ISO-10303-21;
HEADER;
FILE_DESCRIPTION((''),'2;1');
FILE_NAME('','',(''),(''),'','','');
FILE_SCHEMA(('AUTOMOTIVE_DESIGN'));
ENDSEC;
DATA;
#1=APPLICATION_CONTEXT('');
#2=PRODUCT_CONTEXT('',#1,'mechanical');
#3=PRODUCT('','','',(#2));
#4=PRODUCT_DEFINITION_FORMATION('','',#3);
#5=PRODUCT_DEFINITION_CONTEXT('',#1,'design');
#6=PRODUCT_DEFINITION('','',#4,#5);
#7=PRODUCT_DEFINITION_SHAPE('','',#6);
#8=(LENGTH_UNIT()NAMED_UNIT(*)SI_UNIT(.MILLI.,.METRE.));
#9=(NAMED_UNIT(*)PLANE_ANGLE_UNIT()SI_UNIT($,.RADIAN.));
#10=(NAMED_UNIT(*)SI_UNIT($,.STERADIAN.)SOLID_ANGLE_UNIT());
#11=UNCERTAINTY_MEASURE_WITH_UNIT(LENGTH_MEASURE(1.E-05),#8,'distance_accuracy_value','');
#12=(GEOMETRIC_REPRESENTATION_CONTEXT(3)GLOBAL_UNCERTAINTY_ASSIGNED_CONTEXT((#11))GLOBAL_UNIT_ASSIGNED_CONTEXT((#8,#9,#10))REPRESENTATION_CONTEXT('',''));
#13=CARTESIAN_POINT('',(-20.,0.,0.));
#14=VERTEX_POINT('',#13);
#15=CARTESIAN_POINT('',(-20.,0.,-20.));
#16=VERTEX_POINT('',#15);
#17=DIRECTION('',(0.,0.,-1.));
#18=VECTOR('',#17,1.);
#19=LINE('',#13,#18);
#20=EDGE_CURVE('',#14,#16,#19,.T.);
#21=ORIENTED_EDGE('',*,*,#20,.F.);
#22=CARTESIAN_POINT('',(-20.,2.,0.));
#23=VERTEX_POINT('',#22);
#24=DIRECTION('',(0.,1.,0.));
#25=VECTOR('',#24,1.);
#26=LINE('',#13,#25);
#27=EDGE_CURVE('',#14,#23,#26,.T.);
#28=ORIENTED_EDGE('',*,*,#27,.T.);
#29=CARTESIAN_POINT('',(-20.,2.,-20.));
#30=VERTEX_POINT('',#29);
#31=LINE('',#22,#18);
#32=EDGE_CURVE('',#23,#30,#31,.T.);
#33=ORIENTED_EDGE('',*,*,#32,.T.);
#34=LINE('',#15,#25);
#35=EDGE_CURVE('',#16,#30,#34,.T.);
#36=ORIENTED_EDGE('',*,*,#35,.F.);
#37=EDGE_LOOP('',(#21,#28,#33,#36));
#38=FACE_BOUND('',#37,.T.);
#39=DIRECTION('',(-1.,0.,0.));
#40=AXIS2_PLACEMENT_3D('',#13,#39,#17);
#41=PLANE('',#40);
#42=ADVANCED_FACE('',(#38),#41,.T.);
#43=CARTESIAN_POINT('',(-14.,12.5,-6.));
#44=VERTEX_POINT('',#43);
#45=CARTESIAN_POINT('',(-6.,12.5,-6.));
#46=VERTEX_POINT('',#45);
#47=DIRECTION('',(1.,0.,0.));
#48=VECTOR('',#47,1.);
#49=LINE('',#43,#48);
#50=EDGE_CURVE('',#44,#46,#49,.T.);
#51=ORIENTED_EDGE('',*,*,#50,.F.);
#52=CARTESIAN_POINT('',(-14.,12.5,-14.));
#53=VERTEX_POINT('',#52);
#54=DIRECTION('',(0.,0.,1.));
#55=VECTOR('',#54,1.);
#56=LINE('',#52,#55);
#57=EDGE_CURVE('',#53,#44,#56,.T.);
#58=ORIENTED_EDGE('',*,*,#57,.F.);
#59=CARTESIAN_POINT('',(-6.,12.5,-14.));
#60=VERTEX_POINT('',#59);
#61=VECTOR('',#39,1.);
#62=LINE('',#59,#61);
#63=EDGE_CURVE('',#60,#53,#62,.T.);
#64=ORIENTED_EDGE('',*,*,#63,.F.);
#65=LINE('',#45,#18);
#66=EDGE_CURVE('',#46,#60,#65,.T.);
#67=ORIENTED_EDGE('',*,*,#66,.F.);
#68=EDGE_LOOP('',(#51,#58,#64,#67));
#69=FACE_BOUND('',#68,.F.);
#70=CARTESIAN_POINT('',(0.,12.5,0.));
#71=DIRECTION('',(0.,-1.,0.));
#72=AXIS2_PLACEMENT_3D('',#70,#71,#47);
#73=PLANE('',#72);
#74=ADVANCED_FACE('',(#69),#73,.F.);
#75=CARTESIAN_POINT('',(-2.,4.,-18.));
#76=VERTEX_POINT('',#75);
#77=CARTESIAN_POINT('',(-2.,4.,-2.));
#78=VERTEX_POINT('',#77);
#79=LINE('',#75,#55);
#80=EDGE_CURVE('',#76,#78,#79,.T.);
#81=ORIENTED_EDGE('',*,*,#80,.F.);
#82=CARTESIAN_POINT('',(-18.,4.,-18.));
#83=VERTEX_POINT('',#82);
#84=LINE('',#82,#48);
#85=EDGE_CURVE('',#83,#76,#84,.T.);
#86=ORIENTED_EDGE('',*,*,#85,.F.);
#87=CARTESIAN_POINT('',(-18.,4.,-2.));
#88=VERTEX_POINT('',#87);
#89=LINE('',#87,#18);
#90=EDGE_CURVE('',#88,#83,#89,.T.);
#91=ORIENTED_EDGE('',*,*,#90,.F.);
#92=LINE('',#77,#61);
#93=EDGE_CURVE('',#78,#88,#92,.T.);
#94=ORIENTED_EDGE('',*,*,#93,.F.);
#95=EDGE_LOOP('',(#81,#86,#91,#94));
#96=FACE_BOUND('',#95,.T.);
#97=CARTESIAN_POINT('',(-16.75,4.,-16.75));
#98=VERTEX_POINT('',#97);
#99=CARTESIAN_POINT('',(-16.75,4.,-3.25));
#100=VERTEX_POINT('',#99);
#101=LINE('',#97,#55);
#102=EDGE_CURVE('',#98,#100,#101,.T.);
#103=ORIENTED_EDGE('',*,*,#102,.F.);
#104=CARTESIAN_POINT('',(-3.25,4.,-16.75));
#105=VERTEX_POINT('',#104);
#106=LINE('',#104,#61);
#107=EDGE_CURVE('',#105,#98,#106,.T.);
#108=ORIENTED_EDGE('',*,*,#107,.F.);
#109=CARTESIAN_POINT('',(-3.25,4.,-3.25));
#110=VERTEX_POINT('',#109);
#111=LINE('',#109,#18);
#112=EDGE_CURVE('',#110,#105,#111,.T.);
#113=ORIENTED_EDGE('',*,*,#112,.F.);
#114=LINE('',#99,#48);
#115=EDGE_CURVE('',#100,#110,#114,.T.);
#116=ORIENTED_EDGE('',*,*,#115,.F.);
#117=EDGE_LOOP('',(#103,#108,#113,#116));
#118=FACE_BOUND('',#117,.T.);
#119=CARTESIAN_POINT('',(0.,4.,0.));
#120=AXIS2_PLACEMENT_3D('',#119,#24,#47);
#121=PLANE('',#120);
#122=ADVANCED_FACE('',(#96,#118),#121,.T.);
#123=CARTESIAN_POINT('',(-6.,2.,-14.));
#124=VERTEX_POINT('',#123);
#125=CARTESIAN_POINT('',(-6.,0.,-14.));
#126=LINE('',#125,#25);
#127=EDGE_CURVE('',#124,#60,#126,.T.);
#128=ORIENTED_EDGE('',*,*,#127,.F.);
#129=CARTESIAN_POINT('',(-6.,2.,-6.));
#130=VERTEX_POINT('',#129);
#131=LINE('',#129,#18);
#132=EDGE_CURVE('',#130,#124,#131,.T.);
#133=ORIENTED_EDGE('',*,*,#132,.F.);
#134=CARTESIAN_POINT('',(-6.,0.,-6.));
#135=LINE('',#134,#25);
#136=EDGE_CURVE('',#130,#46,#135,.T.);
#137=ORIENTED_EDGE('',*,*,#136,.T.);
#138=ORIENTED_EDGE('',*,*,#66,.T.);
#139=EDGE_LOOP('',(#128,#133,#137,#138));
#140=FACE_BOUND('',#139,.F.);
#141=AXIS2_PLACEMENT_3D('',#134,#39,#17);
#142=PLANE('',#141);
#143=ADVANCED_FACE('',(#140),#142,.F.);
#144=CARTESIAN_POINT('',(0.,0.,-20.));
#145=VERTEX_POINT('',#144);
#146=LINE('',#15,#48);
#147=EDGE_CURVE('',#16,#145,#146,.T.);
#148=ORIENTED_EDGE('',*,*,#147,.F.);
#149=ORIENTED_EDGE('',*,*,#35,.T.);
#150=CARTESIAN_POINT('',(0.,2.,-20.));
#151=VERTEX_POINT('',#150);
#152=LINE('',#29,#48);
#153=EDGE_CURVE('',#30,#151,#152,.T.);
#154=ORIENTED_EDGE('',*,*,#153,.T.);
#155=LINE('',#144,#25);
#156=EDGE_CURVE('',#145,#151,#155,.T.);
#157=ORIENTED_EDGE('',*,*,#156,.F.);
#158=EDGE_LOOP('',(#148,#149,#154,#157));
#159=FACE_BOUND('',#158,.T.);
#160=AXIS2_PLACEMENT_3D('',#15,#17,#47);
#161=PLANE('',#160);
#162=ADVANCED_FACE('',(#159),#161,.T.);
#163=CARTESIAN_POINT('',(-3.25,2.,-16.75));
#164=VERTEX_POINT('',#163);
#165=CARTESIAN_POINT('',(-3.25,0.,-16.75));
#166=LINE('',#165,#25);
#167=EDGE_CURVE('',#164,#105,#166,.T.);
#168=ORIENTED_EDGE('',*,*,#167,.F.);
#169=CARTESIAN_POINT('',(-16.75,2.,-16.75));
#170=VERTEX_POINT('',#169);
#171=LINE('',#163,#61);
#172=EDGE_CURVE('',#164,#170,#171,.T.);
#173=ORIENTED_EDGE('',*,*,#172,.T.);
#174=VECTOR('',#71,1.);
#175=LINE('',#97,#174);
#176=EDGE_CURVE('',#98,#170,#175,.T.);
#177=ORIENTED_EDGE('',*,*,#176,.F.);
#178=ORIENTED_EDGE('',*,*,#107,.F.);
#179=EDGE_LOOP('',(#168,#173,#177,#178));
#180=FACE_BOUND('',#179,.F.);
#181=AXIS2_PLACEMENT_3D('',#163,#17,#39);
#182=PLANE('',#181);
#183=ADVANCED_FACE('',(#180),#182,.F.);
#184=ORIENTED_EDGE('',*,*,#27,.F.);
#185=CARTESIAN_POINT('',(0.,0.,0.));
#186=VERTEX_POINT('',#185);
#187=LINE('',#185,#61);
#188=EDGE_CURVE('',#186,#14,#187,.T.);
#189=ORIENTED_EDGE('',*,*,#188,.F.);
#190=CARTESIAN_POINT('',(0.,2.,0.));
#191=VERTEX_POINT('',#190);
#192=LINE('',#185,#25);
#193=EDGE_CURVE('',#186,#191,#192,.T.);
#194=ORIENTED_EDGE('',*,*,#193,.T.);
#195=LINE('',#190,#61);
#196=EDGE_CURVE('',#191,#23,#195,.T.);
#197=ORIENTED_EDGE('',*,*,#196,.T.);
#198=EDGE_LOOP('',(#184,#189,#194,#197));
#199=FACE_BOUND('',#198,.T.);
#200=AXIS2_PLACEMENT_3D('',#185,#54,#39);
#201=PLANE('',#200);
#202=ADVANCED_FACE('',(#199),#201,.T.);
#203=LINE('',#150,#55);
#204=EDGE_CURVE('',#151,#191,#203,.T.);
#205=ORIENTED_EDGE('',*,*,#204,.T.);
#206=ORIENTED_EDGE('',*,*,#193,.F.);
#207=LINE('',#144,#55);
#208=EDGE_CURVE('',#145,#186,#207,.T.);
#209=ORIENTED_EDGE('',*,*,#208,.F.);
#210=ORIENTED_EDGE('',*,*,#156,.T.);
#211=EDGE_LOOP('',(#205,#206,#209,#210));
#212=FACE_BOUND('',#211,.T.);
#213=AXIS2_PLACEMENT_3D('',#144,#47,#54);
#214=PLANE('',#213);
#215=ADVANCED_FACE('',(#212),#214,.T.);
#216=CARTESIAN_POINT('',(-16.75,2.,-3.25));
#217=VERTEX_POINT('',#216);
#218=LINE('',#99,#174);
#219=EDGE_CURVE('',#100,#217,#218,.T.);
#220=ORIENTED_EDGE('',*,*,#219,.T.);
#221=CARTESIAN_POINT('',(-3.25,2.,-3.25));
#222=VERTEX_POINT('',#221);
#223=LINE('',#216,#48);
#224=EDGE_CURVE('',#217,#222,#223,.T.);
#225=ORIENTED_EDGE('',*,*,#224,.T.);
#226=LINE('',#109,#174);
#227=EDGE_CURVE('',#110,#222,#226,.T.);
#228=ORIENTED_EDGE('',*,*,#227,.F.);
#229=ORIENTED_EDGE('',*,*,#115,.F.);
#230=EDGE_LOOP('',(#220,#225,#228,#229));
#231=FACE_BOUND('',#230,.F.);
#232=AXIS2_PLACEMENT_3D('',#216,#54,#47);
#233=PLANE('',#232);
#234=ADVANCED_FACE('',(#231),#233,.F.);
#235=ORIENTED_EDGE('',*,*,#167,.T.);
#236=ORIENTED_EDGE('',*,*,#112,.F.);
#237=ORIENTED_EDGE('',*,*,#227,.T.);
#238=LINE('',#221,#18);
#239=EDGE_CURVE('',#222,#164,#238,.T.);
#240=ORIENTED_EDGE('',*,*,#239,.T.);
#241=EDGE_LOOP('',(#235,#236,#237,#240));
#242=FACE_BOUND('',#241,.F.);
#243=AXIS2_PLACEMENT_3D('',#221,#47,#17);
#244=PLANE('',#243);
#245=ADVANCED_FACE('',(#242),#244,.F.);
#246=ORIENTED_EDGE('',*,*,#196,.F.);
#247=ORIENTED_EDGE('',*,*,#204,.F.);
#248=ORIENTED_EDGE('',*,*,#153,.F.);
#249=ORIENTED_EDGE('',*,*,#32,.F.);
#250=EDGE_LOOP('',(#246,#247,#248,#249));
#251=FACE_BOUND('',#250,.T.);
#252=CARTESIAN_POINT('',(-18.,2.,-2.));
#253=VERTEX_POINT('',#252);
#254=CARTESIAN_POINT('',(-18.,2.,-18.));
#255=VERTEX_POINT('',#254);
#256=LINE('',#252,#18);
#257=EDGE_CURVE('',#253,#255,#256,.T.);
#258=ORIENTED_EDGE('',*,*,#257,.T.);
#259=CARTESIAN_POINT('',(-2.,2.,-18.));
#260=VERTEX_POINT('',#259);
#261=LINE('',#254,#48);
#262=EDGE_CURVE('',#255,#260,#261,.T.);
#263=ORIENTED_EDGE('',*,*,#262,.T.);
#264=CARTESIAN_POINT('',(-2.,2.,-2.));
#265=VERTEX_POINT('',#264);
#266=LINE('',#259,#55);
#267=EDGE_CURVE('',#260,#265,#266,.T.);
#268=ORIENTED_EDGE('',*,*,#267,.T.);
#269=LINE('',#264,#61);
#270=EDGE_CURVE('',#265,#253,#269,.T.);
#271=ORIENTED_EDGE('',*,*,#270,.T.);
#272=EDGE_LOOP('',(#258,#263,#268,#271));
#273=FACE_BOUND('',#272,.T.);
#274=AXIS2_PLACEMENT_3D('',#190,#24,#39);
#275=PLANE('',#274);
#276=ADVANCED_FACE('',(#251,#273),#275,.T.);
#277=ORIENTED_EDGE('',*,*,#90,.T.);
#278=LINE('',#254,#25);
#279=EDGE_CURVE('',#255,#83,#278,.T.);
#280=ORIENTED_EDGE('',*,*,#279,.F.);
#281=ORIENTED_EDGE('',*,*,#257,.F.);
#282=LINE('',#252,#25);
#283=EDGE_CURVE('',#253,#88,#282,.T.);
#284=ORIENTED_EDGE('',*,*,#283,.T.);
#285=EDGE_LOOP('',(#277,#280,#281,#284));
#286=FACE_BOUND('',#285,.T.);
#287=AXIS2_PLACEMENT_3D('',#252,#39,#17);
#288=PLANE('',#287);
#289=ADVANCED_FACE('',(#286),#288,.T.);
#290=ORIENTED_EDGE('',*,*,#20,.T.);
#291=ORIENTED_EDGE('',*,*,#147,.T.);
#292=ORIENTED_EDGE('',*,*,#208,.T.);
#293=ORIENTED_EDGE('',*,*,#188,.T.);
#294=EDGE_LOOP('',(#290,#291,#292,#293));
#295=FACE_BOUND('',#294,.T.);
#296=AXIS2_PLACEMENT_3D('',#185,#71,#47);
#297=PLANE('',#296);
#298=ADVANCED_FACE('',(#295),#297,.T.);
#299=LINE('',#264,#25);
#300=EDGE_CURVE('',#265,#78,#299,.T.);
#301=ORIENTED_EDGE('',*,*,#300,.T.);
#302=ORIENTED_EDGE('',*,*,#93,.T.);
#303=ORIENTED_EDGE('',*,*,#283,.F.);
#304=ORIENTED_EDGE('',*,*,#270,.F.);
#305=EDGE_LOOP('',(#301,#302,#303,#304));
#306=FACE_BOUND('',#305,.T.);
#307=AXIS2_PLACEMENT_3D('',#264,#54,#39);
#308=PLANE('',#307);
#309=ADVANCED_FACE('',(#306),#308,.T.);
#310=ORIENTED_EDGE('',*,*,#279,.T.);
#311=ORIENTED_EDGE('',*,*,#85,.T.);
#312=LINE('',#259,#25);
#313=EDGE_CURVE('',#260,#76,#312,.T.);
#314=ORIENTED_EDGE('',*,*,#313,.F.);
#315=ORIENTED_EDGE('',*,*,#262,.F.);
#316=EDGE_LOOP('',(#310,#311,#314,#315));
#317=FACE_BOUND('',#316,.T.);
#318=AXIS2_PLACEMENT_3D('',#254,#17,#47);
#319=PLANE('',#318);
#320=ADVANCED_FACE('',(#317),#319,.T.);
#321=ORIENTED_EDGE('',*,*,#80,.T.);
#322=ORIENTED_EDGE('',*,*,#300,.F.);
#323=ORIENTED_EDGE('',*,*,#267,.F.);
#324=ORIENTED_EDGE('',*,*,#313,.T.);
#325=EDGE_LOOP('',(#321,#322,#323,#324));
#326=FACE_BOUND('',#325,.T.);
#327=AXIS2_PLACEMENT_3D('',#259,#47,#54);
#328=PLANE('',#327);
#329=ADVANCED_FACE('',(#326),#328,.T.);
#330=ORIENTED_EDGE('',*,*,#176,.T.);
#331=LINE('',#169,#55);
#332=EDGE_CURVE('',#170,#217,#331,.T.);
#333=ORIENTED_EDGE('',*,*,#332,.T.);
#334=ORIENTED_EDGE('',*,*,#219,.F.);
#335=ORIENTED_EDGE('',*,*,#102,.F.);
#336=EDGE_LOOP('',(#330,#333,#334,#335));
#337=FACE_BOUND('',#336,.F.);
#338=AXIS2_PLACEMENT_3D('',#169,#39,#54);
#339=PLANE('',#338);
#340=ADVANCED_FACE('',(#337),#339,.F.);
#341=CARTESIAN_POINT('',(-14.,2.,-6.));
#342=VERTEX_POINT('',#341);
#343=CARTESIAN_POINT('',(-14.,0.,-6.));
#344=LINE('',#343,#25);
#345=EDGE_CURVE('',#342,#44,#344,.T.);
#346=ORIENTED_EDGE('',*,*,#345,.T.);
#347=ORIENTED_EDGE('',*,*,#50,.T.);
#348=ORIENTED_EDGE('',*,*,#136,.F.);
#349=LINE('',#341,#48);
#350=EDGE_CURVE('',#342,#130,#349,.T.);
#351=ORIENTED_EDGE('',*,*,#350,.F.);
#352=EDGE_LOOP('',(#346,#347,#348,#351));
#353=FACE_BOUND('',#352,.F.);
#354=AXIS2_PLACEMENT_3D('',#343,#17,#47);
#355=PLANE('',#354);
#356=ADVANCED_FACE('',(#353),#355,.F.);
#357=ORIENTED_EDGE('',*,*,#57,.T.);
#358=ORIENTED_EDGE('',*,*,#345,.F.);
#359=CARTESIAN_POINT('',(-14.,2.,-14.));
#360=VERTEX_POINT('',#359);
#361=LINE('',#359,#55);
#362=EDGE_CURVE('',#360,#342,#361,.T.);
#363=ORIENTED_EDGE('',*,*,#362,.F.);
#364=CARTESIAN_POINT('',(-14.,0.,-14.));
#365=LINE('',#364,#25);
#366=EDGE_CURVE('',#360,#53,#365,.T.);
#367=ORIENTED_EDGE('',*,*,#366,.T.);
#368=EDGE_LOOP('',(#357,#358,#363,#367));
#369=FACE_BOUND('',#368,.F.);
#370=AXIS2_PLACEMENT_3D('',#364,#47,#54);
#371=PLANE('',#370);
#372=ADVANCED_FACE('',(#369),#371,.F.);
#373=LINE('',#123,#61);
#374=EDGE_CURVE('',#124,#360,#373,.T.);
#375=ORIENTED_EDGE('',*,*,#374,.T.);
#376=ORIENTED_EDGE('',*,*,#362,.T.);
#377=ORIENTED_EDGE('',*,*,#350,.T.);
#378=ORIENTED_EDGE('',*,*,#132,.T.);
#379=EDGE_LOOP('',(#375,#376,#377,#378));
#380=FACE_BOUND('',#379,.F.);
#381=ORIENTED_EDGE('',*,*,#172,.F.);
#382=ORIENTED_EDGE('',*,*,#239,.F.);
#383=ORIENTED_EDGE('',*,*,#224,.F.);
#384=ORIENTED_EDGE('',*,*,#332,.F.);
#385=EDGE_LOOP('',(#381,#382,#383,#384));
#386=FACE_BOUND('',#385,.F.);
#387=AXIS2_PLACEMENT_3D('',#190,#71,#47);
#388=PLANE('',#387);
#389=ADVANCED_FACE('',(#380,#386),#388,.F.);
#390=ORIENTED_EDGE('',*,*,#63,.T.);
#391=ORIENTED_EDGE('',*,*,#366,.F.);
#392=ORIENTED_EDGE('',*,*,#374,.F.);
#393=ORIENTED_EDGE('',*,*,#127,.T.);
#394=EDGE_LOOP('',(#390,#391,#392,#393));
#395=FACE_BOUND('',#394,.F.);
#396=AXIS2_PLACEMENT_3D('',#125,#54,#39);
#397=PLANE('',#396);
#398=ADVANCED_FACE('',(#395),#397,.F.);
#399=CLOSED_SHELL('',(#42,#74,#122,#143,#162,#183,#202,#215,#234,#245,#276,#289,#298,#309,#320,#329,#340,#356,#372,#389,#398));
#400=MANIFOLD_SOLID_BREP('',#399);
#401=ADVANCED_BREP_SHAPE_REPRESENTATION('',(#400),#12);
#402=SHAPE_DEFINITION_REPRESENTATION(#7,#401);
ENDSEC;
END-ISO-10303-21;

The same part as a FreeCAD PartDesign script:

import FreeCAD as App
import Part
import Sketcher

V = App.Vector
Q = App.Units.Quantity

doc = App.newDocument("Part")
body = doc.addObject("PartDesign::Body", "Body")

sketch1 = doc.addObject("Sketcher::SketchObject", "Sketch")
body.addObject(sketch1)
sketch1.AttachmentSupport = (doc.XZ_Plane, [""])
sketch1.MapMode = "FlatFace"
sketch1.addGeometry([
    Part.LineSegment(V(-20, 0, 0), V(0, 0, 0)),
    Part.LineSegment(V(0, 0, 0), V(0, -20, 0)),
    Part.LineSegment(V(0, -20, 0), V(-20, -20, 0)),
    Part.LineSegment(V(-20, -20, 0), V(-20, 0, 0)),
], False)
sketch1.addConstraint([
    Sketcher.Constraint("Coincident", 0, 2, 1, 1),
    Sketcher.Constraint("Coincident", 1, 2, 2, 1),
    Sketcher.Constraint("Coincident", 2, 2, 3, 1),
    Sketcher.Constraint("Coincident", 3, 2, 0, 1),
    Sketcher.Constraint("Horizontal", 0),
    Sketcher.Constraint("Vertical", 1),
    Sketcher.Constraint("Horizontal", 2),
    Sketcher.Constraint("Vertical", 3),
    Sketcher.Constraint("Coincident", 0, 2, -1, 1),
    Sketcher.Constraint("Equal", 2, 1),
    Sketcher.Constraint("DistanceX", 0, 1, 0, 2, Q("20 mm")),
])
pad1 = doc.addObject("PartDesign::Pad", "Pad")
body.addObject(pad1)
pad1.Profile = sketch1
pad1.Length = 2
pad1.Reversed = True

sketch2 = doc.addObject("Sketcher::SketchObject", "Sketch001")
body.addObject(sketch2)
sketch2.AttachmentSupport = (doc.XZ_Plane, [""])
sketch2.MapMode = "FlatFace"
sketch2.AttachmentOffset = App.Placement(V(0, 0, -2), App.Rotation())
sketch2.addGeometry([
    Part.LineSegment(V(-18, -18, 0), V(-18, -2, 0)),
    Part.LineSegment(V(-18, -2, 0), V(-2, -2, 0)),
    Part.LineSegment(V(-2, -2, 0), V(-2, -18, 0)),
    Part.LineSegment(V(-2, -18, 0), V(-18, -18, 0)),
    Part.LineSegment(V(-17, -3, 0), V(-17, -17, 0)),
    Part.LineSegment(V(-17, -17, 0), V(-3, -17, 0)),
    Part.LineSegment(V(-3, -17, 0), V(-3, -3, 0)),
    Part.LineSegment(V(-3, -3, 0), V(-17, -3, 0)),
], False)
sketch2.addConstraint([
    Sketcher.Constraint("Coincident", 0, 2, 1, 1),
    Sketcher.Constraint("Coincident", 1, 2, 2, 1),
    Sketcher.Constraint("Coincident", 2, 2, 3, 1),
    Sketcher.Constraint("Coincident", 3, 2, 0, 1),
    Sketcher.Constraint("Coincident", 4, 2, 5, 1),
    Sketcher.Constraint("Coincident", 5, 2, 6, 1),
    Sketcher.Constraint("Coincident", 6, 2, 7, 1),
    Sketcher.Constraint("Coincident", 7, 2, 4, 1),
    Sketcher.Constraint("Vertical", 0),
    Sketcher.Constraint("Horizontal", 1),
    Sketcher.Constraint("Vertical", 2),
    Sketcher.Constraint("Horizontal", 3),
    Sketcher.Constraint("Vertical", 4),
    Sketcher.Constraint("Horizontal", 5),
    Sketcher.Constraint("Vertical", 6),
    Sketcher.Constraint("Horizontal", 7),
    Sketcher.Constraint("Equal", 3, 0),
    Sketcher.Constraint("Equal", 7, 4),
    Sketcher.Constraint("DistanceY", 0, 2, -1, 1, Q("2 mm")),
    Sketcher.Constraint("DistanceX", 1, 2, -1, 1, Q("2 mm")),
    Sketcher.Constraint("DistanceX", 1, 1, 1, 2, Q("16 mm")),
    Sketcher.Constraint("DistanceX", 3, 2, 4, 2, Q("1.25 mm")),
    Sketcher.Constraint("DistanceY", 3, 2, 4, 2, Q("1.25 mm")),
    Sketcher.Constraint("DistanceX", 5, 2, 2, 2, Q("1.25 mm")),
])
pad2 = doc.addObject("PartDesign::Pad", "Pad001")
body.addObject(pad2)
pad2.Profile = sketch2
pad2.Length = 2
pad2.Reversed = True

sketch3 = doc.addObject("Sketcher::SketchObject", "Sketch002")
body.addObject(sketch3)
sketch3.AttachmentSupport = (doc.XZ_Plane, [""])
sketch3.MapMode = "FlatFace"
sketch3.AttachmentOffset = App.Placement(V(0, 0, -2), App.Rotation())
sketch3.addGeometry([
    Part.LineSegment(V(-3, -17, 0), V(-17, -17, 0)),
    Part.LineSegment(V(-17, -17, 0), V(-17, -3, 0)),
    Part.LineSegment(V(-17, -3, 0), V(-3, -3, 0)),
    Part.LineSegment(V(-3, -3, 0), V(-3, -17, 0)),
], False)
sketch3.addConstraint([
    Sketcher.Constraint("Coincident", 0, 2, 1, 1),
    Sketcher.Constraint("Coincident", 1, 2, 2, 1),
    Sketcher.Constraint("Coincident", 2, 2, 3, 1),
    Sketcher.Constraint("Coincident", 3, 2, 0, 1),
    Sketcher.Constraint("Horizontal", 0),
    Sketcher.Constraint("Vertical", 1),
    Sketcher.Constraint("Horizontal", 2),
    Sketcher.Constraint("Vertical", 3),
    Sketcher.Constraint("Equal", 2, 1),
    Sketcher.Constraint("DistanceX", 0, 2, 0, 1, Q("13.5 mm")),
    Sketcher.Constraint("DistanceX", 0, 2, -1, 1, Q("16.75 mm")),
    Sketcher.Constraint("DistanceY", 0, 2, -1, 1, Q("16.75 mm")),
])
pocket1 = doc.addObject("PartDesign::Pocket", "Pocket")
body.addObject(pocket1)
pocket1.Profile = sketch3
pocket1.Length = 10
pocket1.Reversed = True

sketch4 = doc.addObject("Sketcher::SketchObject", "Sketch003")
body.addObject(sketch4)
sketch4.AttachmentSupport = (doc.XZ_Plane, [""])
sketch4.MapMode = "FlatFace"
sketch4.addGeometry([
    Part.LineSegment(V(-3, -17, 0), V(-3, -3, 0)),
    Part.LineSegment(V(-3, -3, 0), V(-17, -3, 0)),
    Part.LineSegment(V(-17, -3, 0), V(-17, -17, 0)),
    Part.LineSegment(V(-17, -17, 0), V(-3, -17, 0)),
    Part.LineSegment(V(-14, -6, 0), V(-6, -6, 0)),
    Part.LineSegment(V(-6, -6, 0), V(-6, -14, 0)),
    Part.LineSegment(V(-6, -14, 0), V(-14, -14, 0)),
    Part.LineSegment(V(-14, -14, 0), V(-14, -6, 0)),
], False)
sketch4.addConstraint([
    Sketcher.Constraint("Coincident", 0, 2, 1, 1),
    Sketcher.Constraint("Coincident", 1, 2, 2, 1),
    Sketcher.Constraint("Coincident", 2, 2, 3, 1),
    Sketcher.Constraint("Coincident", 3, 2, 0, 1),
    Sketcher.Constraint("Coincident", 4, 2, 5, 1),
    Sketcher.Constraint("Coincident", 5, 2, 6, 1),
    Sketcher.Constraint("Coincident", 6, 2, 7, 1),
    Sketcher.Constraint("Coincident", 7, 2, 4, 1),
    Sketcher.Constraint("Vertical", 0),
    Sketcher.Constraint("Horizontal", 1),
    Sketcher.Constraint("Vertical", 2),
    Sketcher.Constraint("Horizontal", 3),
    Sketcher.Constraint("Horizontal", 4),
    Sketcher.Constraint("Vertical", 5),
    Sketcher.Constraint("Horizontal", 6),
    Sketcher.Constraint("Vertical", 7),
    Sketcher.Constraint("Equal", 3, 0),
    Sketcher.Constraint("Equal", 6, 5),
    Sketcher.Constraint("DistanceX", 4, 1, 4, 2, Q("8 mm")),
    Sketcher.Constraint("DistanceX", 1, 2, 1, 1, Q("13.5 mm")),
    Sketcher.Constraint("DistanceX", 4, 2, -1, 1, Q("6 mm")),
    Sketcher.Constraint("DistanceY", 4, 2, -1, 1, Q("6 mm")),
    Sketcher.Constraint("DistanceX", 0, 2, -1, 1, Q("3.25 mm")),
    Sketcher.Constraint("DistanceY", 0, 2, -1, 1, Q("3.25 mm")),
])
pad3 = doc.addObject("PartDesign::Pad", "Pad002")
body.addObject(pad3)
pad3.Profile = sketch4
pad3.Length = 2
pad3.Reversed = True

sketch5 = doc.addObject("Sketcher::SketchObject", "Sketch004")
body.addObject(sketch5)
sketch5.AttachmentSupport = (doc.XZ_Plane, [""])
sketch5.MapMode = "FlatFace"
sketch5.addGeometry([
    Part.LineSegment(V(-6, -14, 0), V(-6, -6, 0)),
    Part.LineSegment(V(-6, -6, 0), V(-14, -6, 0)),
    Part.LineSegment(V(-14, -6, 0), V(-14, -14, 0)),
    Part.LineSegment(V(-14, -14, 0), V(-6, -14, 0)),
], False)
sketch5.addConstraint([
    Sketcher.Constraint("Coincident", 0, 2, 1, 1),
    Sketcher.Constraint("Coincident", 1, 2, 2, 1),
    Sketcher.Constraint("Coincident", 2, 2, 3, 1),
    Sketcher.Constraint("Coincident", 3, 2, 0, 1),
    Sketcher.Constraint("Vertical", 0),
    Sketcher.Constraint("Horizontal", 1),
    Sketcher.Constraint("Vertical", 2),
    Sketcher.Constraint("Horizontal", 3),
    Sketcher.Constraint("Equal", 3, 0),
    Sketcher.Constraint("DistanceX", 1, 2, 1, 1, Q("8 mm")),
    Sketcher.Constraint("DistanceX", 0, 2, -1, 1, Q("6 mm")),
    Sketcher.Constraint("DistanceY", 0, 2, -1, 1, Q("6 mm")),
])
pad4 = doc.addObject("PartDesign::Pad", "Pad003")
body.addObject(pad4)
pad4.Profile = sketch5
pad4.Length = 12.5
pad4.Reversed = True

doc.recompute()
